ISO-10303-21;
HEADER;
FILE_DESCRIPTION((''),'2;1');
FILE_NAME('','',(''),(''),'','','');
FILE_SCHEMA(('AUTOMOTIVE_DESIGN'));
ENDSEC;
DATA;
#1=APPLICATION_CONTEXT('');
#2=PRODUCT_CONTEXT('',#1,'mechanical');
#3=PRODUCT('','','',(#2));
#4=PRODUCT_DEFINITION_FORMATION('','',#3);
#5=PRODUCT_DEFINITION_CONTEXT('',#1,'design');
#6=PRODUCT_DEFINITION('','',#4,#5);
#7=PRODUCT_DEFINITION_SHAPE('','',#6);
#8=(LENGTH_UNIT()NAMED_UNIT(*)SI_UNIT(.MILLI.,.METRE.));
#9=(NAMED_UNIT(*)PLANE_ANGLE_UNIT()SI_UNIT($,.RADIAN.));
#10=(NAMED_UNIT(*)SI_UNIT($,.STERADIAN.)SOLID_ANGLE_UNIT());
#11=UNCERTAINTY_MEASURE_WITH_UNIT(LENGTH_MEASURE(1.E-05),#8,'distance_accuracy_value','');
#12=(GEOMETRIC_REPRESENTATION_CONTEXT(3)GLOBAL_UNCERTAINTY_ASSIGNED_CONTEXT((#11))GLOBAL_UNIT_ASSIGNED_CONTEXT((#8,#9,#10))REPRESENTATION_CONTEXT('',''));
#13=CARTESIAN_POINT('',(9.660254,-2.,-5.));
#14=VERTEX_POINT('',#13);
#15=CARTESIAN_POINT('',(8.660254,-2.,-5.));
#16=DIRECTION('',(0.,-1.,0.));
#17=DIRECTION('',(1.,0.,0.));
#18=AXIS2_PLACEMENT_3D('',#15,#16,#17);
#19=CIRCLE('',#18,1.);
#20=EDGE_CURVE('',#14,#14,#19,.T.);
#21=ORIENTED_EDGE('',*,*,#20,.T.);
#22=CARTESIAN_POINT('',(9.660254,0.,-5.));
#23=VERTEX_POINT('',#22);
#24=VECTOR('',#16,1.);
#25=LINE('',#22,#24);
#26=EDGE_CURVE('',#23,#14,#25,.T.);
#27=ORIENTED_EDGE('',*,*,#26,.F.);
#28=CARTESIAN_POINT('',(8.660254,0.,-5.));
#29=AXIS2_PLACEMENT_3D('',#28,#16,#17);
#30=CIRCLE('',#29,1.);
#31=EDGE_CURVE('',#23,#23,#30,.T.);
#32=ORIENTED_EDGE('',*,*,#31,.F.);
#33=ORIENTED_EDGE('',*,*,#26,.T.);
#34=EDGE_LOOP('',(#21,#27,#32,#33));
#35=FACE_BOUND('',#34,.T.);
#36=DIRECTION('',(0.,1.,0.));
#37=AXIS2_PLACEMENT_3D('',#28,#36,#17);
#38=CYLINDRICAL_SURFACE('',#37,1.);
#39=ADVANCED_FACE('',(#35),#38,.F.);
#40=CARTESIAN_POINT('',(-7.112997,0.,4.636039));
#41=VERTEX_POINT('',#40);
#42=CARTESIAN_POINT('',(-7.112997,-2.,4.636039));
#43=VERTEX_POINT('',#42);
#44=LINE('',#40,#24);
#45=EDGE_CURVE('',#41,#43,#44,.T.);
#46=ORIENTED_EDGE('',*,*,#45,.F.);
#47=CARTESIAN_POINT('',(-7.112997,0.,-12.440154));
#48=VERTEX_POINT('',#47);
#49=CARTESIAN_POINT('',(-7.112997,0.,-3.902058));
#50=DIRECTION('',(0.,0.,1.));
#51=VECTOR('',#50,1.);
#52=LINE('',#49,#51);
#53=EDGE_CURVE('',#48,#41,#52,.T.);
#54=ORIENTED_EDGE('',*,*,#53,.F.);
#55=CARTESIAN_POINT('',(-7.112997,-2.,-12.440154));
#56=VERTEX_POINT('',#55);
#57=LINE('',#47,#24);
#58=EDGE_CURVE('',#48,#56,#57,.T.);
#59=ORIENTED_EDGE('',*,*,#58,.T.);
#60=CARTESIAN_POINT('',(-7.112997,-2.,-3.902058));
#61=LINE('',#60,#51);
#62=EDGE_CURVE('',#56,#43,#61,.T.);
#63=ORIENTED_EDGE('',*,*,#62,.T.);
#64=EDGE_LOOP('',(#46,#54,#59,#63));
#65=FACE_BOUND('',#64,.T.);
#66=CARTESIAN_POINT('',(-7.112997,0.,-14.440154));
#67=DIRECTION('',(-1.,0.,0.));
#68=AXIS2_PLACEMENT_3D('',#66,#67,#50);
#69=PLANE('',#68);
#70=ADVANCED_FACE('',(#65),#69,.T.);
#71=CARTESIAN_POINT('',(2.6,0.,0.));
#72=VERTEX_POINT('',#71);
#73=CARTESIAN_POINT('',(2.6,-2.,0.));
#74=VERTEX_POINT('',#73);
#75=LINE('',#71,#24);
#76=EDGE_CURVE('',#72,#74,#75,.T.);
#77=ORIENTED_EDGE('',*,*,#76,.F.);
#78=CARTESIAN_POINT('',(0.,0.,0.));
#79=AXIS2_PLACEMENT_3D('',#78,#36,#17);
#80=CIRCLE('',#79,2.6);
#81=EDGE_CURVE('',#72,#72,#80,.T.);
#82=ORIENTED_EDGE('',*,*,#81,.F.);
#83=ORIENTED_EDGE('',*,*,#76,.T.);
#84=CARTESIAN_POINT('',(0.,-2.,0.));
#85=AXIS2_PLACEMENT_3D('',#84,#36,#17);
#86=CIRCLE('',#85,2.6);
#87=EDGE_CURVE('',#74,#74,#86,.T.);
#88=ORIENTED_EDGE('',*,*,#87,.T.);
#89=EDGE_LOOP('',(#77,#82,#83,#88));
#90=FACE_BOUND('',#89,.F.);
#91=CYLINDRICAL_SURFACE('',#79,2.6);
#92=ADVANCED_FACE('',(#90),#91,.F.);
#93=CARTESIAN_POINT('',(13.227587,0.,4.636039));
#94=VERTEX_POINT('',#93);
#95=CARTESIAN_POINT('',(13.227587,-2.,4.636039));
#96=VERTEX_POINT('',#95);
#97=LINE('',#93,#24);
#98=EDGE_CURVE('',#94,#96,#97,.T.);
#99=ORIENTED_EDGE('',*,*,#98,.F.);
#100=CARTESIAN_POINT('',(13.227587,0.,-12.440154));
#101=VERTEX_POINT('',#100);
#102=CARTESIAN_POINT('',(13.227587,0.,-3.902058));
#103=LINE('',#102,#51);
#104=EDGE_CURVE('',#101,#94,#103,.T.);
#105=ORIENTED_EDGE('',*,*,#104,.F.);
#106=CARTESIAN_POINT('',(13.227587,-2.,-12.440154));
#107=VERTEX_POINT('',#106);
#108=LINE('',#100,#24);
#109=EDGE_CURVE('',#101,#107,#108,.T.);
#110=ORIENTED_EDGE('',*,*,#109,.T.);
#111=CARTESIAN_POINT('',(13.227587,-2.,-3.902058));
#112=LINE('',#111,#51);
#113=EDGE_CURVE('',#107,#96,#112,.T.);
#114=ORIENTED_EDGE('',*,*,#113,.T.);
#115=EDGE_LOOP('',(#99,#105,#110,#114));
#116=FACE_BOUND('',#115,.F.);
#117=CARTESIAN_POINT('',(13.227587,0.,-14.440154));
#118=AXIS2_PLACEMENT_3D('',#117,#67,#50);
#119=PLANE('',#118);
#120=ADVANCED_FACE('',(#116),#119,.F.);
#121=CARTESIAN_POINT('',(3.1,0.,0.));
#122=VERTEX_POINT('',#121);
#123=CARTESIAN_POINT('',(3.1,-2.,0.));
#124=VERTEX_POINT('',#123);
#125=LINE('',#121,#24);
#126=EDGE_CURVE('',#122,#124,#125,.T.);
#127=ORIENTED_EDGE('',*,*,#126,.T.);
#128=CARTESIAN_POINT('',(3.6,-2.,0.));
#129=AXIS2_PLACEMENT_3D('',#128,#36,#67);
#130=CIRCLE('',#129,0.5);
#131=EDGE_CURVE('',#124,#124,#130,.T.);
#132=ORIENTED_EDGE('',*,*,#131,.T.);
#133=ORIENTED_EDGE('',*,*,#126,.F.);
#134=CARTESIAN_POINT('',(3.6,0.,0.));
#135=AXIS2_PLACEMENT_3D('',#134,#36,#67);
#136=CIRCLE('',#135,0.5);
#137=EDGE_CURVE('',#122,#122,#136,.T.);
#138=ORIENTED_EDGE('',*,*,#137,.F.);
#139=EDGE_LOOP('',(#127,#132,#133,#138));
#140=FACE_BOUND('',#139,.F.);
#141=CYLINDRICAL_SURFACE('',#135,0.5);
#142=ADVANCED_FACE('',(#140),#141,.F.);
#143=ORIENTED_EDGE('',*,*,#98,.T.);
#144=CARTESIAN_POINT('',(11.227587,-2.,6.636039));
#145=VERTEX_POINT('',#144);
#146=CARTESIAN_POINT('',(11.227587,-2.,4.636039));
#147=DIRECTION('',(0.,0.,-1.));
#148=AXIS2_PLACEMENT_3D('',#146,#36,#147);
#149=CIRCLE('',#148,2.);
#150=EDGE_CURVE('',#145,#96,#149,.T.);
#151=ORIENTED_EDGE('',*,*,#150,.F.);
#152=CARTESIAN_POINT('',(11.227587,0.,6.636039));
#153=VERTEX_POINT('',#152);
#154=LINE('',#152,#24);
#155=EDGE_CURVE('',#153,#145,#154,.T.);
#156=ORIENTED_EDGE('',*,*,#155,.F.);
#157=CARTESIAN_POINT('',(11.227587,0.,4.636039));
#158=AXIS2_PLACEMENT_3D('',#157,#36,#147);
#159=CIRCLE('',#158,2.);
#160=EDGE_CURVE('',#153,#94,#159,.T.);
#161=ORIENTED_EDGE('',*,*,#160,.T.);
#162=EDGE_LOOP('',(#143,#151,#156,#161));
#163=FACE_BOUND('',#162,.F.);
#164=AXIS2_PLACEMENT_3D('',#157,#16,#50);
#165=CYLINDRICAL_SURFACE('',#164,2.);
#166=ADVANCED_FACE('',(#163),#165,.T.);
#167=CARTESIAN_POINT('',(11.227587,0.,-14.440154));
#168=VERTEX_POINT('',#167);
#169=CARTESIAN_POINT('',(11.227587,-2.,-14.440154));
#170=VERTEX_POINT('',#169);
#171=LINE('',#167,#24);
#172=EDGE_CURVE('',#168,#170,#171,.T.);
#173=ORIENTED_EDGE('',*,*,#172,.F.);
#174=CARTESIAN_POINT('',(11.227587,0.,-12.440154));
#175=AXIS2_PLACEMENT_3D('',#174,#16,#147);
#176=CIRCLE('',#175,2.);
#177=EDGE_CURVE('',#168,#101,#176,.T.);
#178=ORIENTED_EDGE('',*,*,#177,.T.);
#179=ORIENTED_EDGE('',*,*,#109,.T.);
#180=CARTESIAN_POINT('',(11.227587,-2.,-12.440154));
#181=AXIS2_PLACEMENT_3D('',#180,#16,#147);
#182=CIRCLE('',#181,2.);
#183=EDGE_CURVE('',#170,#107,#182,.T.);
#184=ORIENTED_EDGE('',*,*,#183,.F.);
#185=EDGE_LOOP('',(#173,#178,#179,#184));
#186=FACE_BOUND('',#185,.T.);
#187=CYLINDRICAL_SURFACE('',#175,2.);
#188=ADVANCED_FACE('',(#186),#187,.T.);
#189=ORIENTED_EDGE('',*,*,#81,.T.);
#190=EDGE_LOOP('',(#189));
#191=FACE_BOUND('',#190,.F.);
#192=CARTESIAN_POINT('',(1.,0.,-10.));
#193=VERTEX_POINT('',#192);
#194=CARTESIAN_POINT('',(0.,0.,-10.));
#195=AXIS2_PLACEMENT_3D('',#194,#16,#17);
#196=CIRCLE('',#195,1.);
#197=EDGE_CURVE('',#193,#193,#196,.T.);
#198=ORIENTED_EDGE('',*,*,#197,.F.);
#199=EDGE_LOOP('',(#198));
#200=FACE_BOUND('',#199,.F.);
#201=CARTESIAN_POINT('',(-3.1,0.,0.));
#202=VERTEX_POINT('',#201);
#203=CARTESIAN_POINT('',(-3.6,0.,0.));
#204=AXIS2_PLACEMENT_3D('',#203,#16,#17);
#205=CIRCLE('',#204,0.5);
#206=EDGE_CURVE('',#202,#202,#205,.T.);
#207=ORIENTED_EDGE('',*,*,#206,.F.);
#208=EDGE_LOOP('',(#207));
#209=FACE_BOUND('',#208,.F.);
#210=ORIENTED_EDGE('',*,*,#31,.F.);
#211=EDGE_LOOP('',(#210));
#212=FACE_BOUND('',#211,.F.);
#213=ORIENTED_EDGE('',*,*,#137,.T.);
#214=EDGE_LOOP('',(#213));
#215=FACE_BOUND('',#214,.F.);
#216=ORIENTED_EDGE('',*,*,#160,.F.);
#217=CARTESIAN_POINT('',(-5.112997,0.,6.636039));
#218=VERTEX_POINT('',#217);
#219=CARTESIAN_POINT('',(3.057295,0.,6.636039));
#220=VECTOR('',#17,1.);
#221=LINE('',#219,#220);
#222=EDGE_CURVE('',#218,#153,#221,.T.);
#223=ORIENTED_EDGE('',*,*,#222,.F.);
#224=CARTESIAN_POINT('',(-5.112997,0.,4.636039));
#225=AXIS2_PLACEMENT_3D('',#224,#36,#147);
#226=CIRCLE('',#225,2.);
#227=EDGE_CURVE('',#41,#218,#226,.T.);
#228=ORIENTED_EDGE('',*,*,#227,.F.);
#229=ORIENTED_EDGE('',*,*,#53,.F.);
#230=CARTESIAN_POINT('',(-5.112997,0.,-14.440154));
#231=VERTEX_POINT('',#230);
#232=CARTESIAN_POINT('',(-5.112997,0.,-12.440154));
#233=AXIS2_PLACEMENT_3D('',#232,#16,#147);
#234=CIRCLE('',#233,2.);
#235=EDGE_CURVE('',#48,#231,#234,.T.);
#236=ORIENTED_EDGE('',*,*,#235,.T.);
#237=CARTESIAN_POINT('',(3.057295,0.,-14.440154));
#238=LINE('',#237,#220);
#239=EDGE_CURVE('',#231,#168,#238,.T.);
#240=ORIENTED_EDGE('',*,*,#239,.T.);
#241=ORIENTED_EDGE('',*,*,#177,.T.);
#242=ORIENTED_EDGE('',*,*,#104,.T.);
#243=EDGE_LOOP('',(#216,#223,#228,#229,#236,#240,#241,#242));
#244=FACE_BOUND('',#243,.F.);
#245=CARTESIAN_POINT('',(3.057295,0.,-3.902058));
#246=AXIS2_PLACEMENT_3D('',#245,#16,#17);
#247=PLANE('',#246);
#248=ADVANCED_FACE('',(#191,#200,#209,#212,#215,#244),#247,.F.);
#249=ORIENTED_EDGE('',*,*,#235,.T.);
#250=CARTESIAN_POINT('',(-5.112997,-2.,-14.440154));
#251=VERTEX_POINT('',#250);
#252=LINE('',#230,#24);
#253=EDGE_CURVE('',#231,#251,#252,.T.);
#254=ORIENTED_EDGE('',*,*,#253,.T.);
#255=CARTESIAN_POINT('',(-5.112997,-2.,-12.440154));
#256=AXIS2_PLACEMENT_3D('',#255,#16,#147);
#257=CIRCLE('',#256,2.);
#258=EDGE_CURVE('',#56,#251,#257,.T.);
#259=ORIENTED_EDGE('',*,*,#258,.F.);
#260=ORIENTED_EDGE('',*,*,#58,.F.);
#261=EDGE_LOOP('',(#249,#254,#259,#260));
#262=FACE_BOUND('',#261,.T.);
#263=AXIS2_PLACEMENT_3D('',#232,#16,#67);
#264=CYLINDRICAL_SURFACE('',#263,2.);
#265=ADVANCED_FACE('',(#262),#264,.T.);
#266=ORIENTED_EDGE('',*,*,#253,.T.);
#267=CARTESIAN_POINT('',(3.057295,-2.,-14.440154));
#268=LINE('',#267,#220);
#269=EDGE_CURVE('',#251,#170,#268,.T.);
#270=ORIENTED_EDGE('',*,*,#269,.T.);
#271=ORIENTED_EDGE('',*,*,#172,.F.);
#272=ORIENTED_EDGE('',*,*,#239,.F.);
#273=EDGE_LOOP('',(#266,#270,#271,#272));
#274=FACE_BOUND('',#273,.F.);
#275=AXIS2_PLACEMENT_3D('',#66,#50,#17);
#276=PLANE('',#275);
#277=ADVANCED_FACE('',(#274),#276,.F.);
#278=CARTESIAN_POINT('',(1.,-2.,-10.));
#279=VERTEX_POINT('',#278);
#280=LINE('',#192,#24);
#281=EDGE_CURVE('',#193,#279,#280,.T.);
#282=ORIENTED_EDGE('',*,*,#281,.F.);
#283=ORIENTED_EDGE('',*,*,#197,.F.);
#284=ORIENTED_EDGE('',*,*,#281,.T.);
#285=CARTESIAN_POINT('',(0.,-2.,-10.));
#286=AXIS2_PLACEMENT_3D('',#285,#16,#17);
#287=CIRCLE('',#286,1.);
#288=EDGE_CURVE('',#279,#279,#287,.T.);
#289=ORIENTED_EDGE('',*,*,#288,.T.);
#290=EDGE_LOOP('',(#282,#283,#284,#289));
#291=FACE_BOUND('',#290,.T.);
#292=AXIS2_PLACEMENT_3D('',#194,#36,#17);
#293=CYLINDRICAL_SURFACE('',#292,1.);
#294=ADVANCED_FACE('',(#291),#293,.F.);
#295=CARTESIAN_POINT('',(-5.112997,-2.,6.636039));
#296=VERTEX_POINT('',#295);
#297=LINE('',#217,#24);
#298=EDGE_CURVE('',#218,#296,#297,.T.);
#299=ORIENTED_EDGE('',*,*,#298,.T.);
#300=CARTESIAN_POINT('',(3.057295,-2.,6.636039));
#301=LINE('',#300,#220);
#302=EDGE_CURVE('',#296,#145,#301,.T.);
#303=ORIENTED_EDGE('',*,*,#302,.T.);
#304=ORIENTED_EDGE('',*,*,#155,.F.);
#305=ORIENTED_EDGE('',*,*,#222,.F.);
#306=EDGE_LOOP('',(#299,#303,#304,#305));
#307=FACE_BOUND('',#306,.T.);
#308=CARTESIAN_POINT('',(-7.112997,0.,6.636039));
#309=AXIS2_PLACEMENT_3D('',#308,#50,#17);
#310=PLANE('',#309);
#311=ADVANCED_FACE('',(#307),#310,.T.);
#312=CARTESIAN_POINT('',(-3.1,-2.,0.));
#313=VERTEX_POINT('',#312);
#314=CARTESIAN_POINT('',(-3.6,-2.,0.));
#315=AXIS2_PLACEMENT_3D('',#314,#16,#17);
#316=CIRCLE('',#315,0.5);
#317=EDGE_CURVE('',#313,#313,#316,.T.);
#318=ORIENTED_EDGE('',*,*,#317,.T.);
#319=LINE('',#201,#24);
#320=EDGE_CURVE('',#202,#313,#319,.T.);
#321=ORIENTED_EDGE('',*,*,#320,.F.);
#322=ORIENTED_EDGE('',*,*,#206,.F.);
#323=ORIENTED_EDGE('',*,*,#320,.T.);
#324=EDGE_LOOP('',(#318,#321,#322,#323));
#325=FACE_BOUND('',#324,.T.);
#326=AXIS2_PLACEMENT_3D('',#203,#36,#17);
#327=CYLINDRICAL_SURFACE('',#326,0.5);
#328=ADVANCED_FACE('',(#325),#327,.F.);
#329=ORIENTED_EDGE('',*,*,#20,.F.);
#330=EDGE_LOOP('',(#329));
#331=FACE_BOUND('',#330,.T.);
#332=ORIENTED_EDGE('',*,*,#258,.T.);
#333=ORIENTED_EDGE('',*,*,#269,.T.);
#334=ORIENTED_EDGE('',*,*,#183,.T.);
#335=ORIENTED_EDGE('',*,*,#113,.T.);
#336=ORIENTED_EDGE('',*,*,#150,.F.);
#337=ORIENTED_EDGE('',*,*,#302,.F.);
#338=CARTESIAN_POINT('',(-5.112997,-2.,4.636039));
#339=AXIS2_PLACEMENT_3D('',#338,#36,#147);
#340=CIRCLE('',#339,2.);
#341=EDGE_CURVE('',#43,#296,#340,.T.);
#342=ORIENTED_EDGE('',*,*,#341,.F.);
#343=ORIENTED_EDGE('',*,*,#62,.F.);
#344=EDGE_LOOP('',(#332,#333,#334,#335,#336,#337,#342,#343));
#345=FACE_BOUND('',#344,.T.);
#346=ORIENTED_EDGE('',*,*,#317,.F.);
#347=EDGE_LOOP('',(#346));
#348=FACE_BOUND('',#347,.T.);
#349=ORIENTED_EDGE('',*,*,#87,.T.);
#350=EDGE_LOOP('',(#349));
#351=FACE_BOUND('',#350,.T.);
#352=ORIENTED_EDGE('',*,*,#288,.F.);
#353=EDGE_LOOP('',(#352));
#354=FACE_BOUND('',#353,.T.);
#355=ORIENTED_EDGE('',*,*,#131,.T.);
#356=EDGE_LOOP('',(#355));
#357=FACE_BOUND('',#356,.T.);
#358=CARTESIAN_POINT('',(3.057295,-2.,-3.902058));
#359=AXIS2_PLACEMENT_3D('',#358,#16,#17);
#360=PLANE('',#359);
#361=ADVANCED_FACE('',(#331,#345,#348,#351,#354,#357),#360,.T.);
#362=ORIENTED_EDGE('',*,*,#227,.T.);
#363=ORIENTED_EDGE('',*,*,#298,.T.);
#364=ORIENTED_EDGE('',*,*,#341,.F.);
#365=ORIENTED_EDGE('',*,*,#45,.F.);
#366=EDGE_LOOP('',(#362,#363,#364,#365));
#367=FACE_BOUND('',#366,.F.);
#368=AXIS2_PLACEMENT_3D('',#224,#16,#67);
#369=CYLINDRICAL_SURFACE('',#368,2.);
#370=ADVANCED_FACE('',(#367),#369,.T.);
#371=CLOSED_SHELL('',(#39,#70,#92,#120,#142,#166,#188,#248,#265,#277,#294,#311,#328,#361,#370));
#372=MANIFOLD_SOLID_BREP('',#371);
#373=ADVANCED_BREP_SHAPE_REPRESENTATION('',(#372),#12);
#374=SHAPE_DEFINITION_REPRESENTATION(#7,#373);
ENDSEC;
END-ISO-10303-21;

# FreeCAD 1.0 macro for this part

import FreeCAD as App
import Part
import Sketcher
Q = App.Units.Quantity


def edges_at(feature, points):
    """Names of the edges that pass closest to the given points."""
    edges = feature.Shape.Edges
    near = lambda p: min(range(len(edges)), key=lambda i: edges[i].distToShape(Part.Vertex(*p))[0])
    return sorted({f"Edge{near(p) + 1}" for p in points})

doc = App.newDocument("Part")
body = doc.addObject("PartDesign::Body", "Body")

sketch1 = doc.addObject("Sketcher::SketchObject", "Sketch")
body.addObject(sketch1)
sketch1.AttachmentSupport = (doc.XZ_Plane, [""])
sketch1.MapMode = "FlatFace"
sketch1.addGeometry([
    Part.LineSegment(App.Vector(-7.1, 6.6, 0), App.Vector(-7.1, -14.4, 0)),
    Part.LineSegment(App.Vector(-7.1, -14.4, 0), App.Vector(13.2, -14.4, 0)),
    Part.LineSegment(App.Vector(13.2, -14.4, 0), App.Vector(13.2, 6.6, 0)),
    Part.LineSegment(App.Vector(13.2, 6.6, 0), App.Vector(-7.1, 6.6, 0)),
    Part.Circle(App.Vector(0, -10, 0), App.Vector(0, 0, 1), 1),
    Part.Circle(App.Vector(8.7, -5, 0), App.Vector(0, 0, 1), 1),
    Part.Circle(App.Vector(-3.6, 0, 0), App.Vector(0, 0, 1), 0.5),
    Part.Circle(App.Vector(0, 0, 0), App.Vector(0, 0, 1), 2.6),
    Part.Circle(App.Vector(3.6, 0, 0), App.Vector(0, 0, 1), 0.5),
], False)
sketch1.addConstraint([
    Sketcher.Constraint("Coincident", 0, 2, 1, 1),
    Sketcher.Constraint("Coincident", 1, 2, 2, 1),
    Sketcher.Constraint("Coincident", 2, 2, 3, 1),
    Sketcher.Constraint("Coincident", 3, 2, 0, 1),
    Sketcher.Constraint("Vertical", 0),
    Sketcher.Constraint("Horizontal", 1),
    Sketcher.Constraint("Vertical", 2),
    Sketcher.Constraint("Horizontal", 3),
    Sketcher.Constraint("Coincident", 7, 3, -1, 1),
    Sketcher.Constraint("Equal", 4, 5),
    Sketcher.Constraint("Equal", 6, 8),
    Sketcher.Constraint("Symmetric", 6, 3, 8, 3, -1, 1),
    Sketcher.Constraint("PointOnObject", 4, 3, -2),
    Sketcher.Constraint("PointOnObject", 6, 3, -1),
    Sketcher.Constraint("Diameter", 4, Q("2 mm")),
    Sketcher.Constraint("Diameter", 6, Q("1 mm")),
    Sketcher.Constraint("Diameter", 7, Q("5.2 mm")),
    Sketcher.Constraint("DistanceY", 4, 3, -1, 1, Q("10 mm")),
    Sketcher.Constraint("DistanceY", 5, 3, -1, 1, Q("5 mm")),
    Sketcher.Constraint("DistanceX", 6, 3, -1, 1, Q("3.6 mm")),
    Sketcher.Constraint("DistanceX", 1, 1, 1, 2, Q("20.340584 mm")),
    Sketcher.Constraint("DistanceY", 0, 2, 0, 1, Q("21.076193 mm")),
    Sketcher.Constraint("DistanceY", -1, 1, 2, 2, Q("6.636039 mm")),
    Sketcher.Constraint("DistanceX", 0, 2, 5, 3, Q("15.773251 mm")),
    Sketcher.Constraint("DistanceX", -1, 1, 5, 3, Q("8.660254 mm")),
])
pad1 = doc.addObject("PartDesign::Pad", "Pad")
body.addObject(pad1)
pad1.Profile = sketch1
pad1.Length = 2
doc.recompute()

fillet = doc.addObject("PartDesign::Fillet", "Fillet")
body.addObject(fillet)
fillet.Base = (pad1, edges_at(pad1, [
    (-7.113, -1, 6.636),
    (13.228, -1, 6.636),
    (13.228, -1, -14.44),
    (-7.113, -1, -14.44),
]))
fillet.Radius = 2

doc.recompute()
